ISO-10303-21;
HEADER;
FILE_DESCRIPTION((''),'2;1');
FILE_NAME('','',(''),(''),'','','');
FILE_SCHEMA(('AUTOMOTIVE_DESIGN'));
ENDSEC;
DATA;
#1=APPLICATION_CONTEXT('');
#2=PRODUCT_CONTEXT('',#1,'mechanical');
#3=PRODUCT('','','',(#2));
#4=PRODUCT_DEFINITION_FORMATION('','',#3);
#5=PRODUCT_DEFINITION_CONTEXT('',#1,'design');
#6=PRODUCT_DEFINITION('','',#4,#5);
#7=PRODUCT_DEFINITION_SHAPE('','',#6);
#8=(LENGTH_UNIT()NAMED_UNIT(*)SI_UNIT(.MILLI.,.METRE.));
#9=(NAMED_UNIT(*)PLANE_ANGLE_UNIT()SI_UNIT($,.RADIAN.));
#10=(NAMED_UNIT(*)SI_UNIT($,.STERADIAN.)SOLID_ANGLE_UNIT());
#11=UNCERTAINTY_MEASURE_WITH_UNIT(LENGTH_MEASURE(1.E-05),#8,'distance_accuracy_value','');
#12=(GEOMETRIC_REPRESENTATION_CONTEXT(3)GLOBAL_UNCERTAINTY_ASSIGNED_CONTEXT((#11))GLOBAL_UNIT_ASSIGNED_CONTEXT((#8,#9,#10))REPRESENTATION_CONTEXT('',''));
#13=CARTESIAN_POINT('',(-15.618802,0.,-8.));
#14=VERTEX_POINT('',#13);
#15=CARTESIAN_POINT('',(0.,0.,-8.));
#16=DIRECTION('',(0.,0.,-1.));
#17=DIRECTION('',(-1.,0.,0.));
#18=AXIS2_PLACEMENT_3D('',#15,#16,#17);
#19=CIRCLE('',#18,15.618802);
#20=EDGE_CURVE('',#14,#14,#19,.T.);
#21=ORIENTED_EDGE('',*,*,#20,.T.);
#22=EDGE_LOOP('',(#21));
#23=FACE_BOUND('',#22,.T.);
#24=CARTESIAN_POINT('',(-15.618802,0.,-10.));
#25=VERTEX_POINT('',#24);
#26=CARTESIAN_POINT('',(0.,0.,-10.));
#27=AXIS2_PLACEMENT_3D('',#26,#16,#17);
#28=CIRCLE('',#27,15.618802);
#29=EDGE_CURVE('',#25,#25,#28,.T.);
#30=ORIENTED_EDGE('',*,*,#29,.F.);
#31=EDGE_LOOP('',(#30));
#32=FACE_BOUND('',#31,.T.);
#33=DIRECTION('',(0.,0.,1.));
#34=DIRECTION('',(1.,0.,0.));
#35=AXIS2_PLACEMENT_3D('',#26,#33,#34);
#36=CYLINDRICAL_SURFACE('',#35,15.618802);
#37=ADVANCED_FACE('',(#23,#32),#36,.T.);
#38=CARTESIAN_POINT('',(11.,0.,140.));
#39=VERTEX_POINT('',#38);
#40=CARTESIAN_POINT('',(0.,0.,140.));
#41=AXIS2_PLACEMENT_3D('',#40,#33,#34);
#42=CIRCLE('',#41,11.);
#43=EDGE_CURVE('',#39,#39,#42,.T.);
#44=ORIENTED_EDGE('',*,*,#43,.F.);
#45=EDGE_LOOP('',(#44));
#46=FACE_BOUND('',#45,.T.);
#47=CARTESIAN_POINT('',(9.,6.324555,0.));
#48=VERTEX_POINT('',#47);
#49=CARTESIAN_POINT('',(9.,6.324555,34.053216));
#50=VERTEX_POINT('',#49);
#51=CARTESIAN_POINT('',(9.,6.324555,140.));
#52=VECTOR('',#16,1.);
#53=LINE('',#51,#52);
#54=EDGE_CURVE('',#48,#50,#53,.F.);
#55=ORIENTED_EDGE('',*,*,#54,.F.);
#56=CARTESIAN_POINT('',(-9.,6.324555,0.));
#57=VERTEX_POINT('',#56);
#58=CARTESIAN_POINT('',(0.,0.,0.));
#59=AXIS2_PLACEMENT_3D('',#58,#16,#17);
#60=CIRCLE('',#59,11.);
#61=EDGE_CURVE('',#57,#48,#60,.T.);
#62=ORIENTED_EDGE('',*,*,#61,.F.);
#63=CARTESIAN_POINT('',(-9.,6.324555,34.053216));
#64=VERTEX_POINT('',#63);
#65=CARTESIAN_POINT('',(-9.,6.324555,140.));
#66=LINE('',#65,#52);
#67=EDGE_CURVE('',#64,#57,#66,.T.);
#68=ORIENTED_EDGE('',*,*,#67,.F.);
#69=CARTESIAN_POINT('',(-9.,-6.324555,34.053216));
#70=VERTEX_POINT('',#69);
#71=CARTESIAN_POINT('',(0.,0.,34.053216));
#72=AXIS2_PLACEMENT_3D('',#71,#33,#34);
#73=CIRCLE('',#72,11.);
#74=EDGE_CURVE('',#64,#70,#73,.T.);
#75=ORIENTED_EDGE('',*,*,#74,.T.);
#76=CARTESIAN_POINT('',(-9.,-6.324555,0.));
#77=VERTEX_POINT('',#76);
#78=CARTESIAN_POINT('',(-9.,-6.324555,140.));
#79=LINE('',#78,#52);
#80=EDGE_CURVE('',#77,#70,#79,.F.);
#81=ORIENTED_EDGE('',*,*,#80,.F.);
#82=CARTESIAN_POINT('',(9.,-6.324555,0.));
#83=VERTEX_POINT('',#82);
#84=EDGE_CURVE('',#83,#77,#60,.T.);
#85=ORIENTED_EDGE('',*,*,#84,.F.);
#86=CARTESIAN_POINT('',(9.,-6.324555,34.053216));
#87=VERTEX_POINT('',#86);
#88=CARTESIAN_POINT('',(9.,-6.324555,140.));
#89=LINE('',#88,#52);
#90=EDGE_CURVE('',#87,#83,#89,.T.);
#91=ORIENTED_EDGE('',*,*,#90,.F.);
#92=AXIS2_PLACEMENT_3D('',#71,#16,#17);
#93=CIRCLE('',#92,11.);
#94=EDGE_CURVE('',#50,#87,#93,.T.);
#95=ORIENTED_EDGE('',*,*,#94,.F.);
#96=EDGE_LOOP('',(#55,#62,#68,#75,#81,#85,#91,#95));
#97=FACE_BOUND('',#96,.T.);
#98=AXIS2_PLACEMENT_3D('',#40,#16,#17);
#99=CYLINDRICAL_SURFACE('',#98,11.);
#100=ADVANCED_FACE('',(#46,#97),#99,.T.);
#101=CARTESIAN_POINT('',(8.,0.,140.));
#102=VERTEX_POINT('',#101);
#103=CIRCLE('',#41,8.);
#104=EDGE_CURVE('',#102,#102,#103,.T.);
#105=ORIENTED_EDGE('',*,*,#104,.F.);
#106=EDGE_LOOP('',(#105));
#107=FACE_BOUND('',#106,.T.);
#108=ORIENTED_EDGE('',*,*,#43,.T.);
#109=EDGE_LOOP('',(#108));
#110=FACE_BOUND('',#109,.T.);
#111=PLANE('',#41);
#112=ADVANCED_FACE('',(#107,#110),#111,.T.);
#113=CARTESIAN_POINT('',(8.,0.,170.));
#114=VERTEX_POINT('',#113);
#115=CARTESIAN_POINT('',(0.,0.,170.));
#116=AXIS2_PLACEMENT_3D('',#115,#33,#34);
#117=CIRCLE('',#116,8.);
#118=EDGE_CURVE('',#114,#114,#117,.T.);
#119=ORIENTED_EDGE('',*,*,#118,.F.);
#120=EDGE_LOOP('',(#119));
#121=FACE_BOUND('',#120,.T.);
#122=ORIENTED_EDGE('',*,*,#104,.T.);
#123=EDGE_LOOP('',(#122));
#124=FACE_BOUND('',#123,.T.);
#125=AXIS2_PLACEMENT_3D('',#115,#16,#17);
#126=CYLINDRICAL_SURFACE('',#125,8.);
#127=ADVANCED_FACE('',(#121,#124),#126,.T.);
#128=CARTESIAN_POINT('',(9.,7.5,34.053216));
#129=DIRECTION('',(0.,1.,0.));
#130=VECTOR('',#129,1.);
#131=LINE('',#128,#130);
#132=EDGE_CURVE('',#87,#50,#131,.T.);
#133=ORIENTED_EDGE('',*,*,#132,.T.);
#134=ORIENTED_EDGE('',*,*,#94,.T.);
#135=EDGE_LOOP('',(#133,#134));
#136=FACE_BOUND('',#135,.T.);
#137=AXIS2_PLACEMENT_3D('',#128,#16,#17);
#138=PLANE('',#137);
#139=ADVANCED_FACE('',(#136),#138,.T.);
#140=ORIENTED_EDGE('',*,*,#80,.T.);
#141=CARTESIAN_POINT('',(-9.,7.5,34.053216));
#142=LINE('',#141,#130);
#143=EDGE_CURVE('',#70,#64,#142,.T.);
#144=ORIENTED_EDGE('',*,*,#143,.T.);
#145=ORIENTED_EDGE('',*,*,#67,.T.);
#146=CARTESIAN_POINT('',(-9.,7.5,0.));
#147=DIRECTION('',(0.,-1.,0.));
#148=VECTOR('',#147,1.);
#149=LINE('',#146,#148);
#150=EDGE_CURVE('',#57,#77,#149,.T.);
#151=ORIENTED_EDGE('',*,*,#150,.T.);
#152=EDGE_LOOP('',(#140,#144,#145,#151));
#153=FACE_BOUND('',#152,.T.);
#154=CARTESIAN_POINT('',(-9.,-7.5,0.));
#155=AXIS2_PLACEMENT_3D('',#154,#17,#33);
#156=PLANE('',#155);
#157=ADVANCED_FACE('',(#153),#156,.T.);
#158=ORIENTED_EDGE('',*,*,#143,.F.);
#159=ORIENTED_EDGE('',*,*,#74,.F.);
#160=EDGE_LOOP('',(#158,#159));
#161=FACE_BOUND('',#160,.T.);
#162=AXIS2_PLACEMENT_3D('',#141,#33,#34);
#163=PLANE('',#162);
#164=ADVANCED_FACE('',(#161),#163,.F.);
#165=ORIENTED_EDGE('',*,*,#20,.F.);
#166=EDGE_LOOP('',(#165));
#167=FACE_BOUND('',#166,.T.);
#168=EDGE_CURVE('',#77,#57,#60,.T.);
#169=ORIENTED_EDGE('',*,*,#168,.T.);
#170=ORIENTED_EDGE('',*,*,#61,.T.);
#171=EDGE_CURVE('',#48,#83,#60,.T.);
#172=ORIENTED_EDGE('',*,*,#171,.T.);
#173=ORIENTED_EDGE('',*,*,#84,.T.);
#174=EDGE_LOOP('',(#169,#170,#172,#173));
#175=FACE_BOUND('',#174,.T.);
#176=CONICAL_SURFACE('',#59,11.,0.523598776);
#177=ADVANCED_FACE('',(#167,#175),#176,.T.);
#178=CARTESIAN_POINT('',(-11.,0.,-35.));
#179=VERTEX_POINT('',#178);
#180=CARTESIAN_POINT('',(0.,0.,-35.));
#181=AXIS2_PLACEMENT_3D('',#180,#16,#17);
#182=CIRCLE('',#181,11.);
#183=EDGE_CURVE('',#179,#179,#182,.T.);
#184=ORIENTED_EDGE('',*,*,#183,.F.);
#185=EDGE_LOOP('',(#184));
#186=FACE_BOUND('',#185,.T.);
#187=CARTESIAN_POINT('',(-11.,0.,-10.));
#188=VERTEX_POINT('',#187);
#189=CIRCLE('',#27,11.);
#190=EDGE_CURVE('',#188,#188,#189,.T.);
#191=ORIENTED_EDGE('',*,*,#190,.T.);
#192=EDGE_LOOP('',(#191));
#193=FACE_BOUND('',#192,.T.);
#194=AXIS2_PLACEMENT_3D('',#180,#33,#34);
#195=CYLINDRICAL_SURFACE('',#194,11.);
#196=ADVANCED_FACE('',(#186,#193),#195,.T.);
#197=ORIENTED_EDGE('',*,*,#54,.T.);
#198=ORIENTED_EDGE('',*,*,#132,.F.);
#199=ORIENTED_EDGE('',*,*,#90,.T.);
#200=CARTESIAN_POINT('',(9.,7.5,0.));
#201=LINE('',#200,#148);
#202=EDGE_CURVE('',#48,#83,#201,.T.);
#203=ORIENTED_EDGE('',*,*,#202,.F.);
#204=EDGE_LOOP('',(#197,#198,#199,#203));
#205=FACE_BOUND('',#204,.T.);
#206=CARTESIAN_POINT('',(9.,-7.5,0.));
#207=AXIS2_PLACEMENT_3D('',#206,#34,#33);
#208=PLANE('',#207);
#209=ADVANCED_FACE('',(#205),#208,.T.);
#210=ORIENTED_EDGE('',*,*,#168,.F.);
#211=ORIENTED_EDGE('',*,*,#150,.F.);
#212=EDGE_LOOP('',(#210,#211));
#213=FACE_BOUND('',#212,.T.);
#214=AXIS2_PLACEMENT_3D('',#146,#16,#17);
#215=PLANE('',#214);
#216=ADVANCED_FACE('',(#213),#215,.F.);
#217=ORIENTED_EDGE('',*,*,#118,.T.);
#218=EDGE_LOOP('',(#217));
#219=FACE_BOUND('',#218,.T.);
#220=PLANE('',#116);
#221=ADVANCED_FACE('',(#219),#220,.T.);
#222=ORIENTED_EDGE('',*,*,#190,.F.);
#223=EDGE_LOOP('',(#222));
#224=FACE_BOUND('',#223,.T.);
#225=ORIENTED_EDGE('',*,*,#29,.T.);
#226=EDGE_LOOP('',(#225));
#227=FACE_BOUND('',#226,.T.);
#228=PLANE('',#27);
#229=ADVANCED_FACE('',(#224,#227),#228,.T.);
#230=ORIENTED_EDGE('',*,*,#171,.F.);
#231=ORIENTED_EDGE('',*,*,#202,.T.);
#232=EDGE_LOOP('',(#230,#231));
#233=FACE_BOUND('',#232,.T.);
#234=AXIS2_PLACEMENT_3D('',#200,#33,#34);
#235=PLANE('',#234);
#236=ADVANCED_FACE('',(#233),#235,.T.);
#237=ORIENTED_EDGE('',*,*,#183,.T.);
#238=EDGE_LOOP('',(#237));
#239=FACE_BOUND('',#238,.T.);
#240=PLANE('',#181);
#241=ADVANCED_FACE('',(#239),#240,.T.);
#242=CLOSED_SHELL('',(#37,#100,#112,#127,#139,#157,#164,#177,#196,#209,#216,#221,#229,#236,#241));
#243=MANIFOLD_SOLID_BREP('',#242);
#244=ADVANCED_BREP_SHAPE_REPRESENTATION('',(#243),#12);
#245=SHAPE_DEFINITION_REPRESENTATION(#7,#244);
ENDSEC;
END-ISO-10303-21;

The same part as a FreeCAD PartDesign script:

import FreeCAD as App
import Part
import Sketcher

V = App.Vector
Q = App.Units.Quantity


def faces_at(feature, points):
    """Names of the faces that lie closest to the given points."""
    faces = feature.Shape.Faces
    near = lambda p: min(range(len(faces)), key=lambda i: faces[i].distToShape(Part.Vertex(*p))[0])
    return sorted({f"Face{near(p) + 1}" for p in points})

doc = App.newDocument("Part")
body = doc.addObject("PartDesign::Body", "Body")

# Sketch on XY plane
sketch1 = body.newObject("Sketcher::SketchObject", "Sketch")
sketch1.AttachmentSupport = (doc.getObject("XY_Plane"), [""])
sketch1.MapMode = "FlatFace"
sketch1.addGeometry(Part.Circle(V(0, 0, 0), V(0, 0, 1), 11), False)
sketch1.addConstraint(Sketcher.Constraint("Coincident", 0, 3, -1, 1))
sketch1.addConstraint(Sketcher.Constraint("Diameter", 0, Q("22 mm")))
pad1 = body.newObject("PartDesign::Pad", "Pad")
pad1.Profile = sketch1
pad1.Length = 140

# Sketch on XY plane
sketch2 = body.newObject("Sketcher::SketchObject", "Sketch001")
sketch2.AttachmentSupport = (doc.getObject("XY_Plane"), [""])
sketch2.MapMode = "FlatFace"
sketch2.AttachmentOffset = App.Placement(V(0, 0, 140), App.Rotation())
sketch2.addGeometry(Part.Circle(V(0, 0, 0), V(0, 0, 1), 8), False)
sketch2.addConstraint(Sketcher.Constraint("Coincident", 0, 3, -1, 1))
sketch2.addConstraint(Sketcher.Constraint("Diameter", 0, Q("16 mm")))
pad2 = body.newObject("PartDesign::Pad", "Pad001")
pad2.Profile = sketch2
pad2.Length = 30
body2 = doc.addObject("PartDesign::Body", "Body001")

# Sketch on XY plane
sketch3 = body2.newObject("Sketcher::SketchObject", "Sketch002")
sketch3.AttachmentSupport = (doc.getObject("XY_Plane001"), [""])
sketch3.MapMode = "FlatFace"
sketch3.addGeometry(Part.Circle(V(0, 0, 0), V(0, 0, 1), 11), False)
sketch3.addConstraint(Sketcher.Constraint("Coincident", 0, 3, -1, 1))
sketch3.addConstraint(Sketcher.Constraint("Diameter", 0, Q("22 mm")))
pad3 = body2.newObject("PartDesign::Pad", "Pad002")
pad3.Profile = sketch3
pad3.Length = 8
pad3.Reversed = True
doc.recompute()

draft = body2.newObject("PartDesign::Draft", "Draft")
draft.Base = (pad3, faces_at(pad3, [(11, 0, -4)]))
draft.NeutralPlane = (doc.getObject("XY_Plane001"), [""])
draft.Angle = 30
draft.Reversed = False
doc.recompute()

boolean = body.newObject("PartDesign::Boolean", "Boolean")
boolean.Type = "Fuse"
boolean.addObjects([body2])

# Sketch on XY plane
sketch4 = body.newObject("Sketcher::SketchObject", "Sketch003")
sketch4.AttachmentSupport = (doc.getObject("XY_Plane"), [""])
sketch4.MapMode = "FlatFace"
sketch4.AttachmentOffset = App.Placement(V(0, 0, -8), App.Rotation())
sketch4.addGeometry(Part.Circle(V(0, 0, 0), V(0, 0, 1), 15.618802), False)
sketch4.addConstraint(Sketcher.Constraint("Coincident", 0, 3, -1, 1))
sketch4.addConstraint(Sketcher.Constraint("Diameter", 0, Q("31.237604 mm")))
pad4 = body.newObject("PartDesign::Pad", "Pad003")
pad4.Profile = sketch4
pad4.Length = 2
pad4.Reversed = True

# Sketch on YZ plane
sketch5 = body.newObject("Sketcher::SketchObject", "Sketch004")
sketch5.AttachmentSupport = (doc.getObject("YZ_Plane"), [""])
sketch5.MapMode = "FlatFace"
sketch5.AttachmentOffset = App.Placement(V(0, 0, -11), App.Rotation())
sketch5.addGeometry(Part.LineSegment(V(7.5, 0, 0), V(-7.5, 0, 0)), False)
sketch5.addGeometry(Part.LineSegment(V(-7.5, 0, 0), V(-7.5, 34.053216, 0)), False)
sketch5.addGeometry(Part.LineSegment(V(-7.5, 34.053216, 0), V(7.5, 34.053216, 0)), False)
sketch5.addGeometry(Part.LineSegment(V(7.5, 34.053216, 0), V(7.5, 0, 0)), False)
sketch5.addConstraint(Sketcher.Constraint("Coincident", 0, 2, 1, 1))
sketch5.addConstraint(Sketcher.Constraint("Coincident", 1, 2, 2, 1))
sketch5.addConstraint(Sketcher.Constraint("Coincident", 2, 2, 3, 1))
sketch5.addConstraint(Sketcher.Constraint("Coincident", 3, 2, 0, 1))
sketch5.addConstraint(Sketcher.Constraint("Horizontal", 0))
sketch5.addConstraint(Sketcher.Constraint("Vertical", 1))
sketch5.addConstraint(Sketcher.Constraint("Horizontal", 2))
sketch5.addConstraint(Sketcher.Constraint("Vertical", 3))
sketch5.addConstraint(Sketcher.Constraint("Symmetric", 0, 2, 3, 2, -1, 1))
sketch5.addConstraint(Sketcher.Constraint("DistanceX", 0, 2, 0, 1, Q("15 mm")))
sketch5.addConstraint(Sketcher.Constraint("DistanceY", 1, 1, 1, 2, Q("34.053216 mm")))
pocket1 = body.newObject("PartDesign::Pocket", "Pocket")
pocket1.Profile = sketch5
pocket1.Length = 2
pocket1.Reversed = True
doc.recompute()

mirrored = body.newObject("PartDesign::Mirrored", "Mirrored")
mirrored.Originals = [pocket1]
mirrored.MirrorPlane = (doc.getObject("YZ_Plane"), [""])
body.Tip = mirrored

# Sketch on XY plane
sketch6 = body.newObject("Sketcher::SketchObject", "Sketch005")
sketch6.AttachmentSupport = (doc.getObject("XY_Plane"), [""])
sketch6.MapMode = "FlatFace"
sketch6.AttachmentOffset = App.Placement(V(0, 0, -35), App.Rotation())
sketch6.addGeometry(Part.Circle(V(0, 0, 0), V(0, 0, 1), 11), False)
sketch6.addConstraint(Sketcher.Constraint("Coincident", 0, 3, -1, 1))
sketch6.addConstraint(Sketcher.Constraint("Diameter", 0, Q("22 mm")))
pad5 = body.newObject("PartDesign::Pad", "Pad004")
pad5.Profile = sketch6
pad5.Length = 25

doc.recompute()
